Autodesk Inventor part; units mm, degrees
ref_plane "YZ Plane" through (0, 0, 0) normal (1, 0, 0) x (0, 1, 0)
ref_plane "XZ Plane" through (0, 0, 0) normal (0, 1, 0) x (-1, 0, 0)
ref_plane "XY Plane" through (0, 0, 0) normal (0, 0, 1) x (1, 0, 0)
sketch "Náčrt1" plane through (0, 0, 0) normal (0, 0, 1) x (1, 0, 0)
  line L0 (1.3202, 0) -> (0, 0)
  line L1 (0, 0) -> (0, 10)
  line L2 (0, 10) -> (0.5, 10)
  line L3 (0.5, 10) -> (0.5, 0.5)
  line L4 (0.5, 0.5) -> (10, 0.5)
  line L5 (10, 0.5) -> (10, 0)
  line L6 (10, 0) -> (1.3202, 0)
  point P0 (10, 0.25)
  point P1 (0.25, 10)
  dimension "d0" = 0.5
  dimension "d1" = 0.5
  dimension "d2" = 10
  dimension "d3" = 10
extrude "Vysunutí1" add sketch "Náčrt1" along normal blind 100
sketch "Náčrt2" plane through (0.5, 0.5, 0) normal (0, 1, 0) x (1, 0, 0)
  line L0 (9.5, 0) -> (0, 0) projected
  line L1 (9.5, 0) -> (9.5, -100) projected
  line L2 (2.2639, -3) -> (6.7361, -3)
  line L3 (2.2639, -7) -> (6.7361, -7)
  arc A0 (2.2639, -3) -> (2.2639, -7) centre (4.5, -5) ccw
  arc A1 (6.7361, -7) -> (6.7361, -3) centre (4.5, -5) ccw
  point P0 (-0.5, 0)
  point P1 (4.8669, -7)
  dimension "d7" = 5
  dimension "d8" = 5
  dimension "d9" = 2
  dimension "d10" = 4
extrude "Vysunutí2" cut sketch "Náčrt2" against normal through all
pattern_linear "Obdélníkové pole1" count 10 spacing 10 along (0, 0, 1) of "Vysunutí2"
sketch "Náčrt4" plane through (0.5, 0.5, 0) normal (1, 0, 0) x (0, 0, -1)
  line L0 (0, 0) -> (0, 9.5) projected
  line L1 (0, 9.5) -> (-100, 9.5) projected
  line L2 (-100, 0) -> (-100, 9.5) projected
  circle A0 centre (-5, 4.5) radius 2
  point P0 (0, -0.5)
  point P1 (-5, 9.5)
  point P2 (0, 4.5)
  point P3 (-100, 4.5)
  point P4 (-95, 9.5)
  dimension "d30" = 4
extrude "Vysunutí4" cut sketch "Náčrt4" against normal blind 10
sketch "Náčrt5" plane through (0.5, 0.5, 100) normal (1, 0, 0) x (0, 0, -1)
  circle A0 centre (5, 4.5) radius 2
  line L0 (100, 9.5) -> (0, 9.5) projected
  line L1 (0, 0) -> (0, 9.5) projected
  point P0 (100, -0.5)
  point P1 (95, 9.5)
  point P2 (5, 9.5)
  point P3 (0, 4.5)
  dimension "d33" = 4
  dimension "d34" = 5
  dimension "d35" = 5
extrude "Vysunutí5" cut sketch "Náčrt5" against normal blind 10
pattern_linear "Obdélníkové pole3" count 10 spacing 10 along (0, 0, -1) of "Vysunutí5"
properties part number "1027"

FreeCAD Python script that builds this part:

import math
import FreeCAD as App
import Part
import Sketcher
from FreeCAD import Vector
Q = App.Units.Quantity

doc = App.newDocument("Part")
body = doc.addObject("PartDesign::Body", "Body")

# Sketch on XY plane
sketch1 = doc.addObject("Sketcher::SketchObject", "Sketch")
body.addObject(sketch1)
sketch1.AttachmentSupport = (doc.XY_Plane, [""])
sketch1.MapMode = "FlatFace"
sketch1.addGeometry([
    Part.LineSegment(Vector(0, 0, 0), Vector(10, 0, 0)),  # 0
    Part.LineSegment(Vector(10, 0, 0), Vector(10, 0.5, 0)),  # 1
    Part.LineSegment(Vector(10, 0.5, 0), Vector(0.5, 0.5, 0)),  # 2
    Part.LineSegment(Vector(0.5, 0.5, 0), Vector(0.5, 10, 0)),  # 3
    Part.LineSegment(Vector(0.5, 10, 0), Vector(0, 10, 0)),  # 4
    Part.LineSegment(Vector(0, 10, 0), Vector(0, 0, 0)),  # 5
], False)
sketch1.addConstraint([
    Sketcher.Constraint("Coincident", 0, 2, 1, 1),
    Sketcher.Constraint("Coincident", 1, 2, 2, 1),
    Sketcher.Constraint("Coincident", 2, 2, 3, 1),
    Sketcher.Constraint("Coincident", 3, 2, 4, 1),
    Sketcher.Constraint("Coincident", 4, 2, 5, 1),
    Sketcher.Constraint("Coincident", 5, 2, 0, 1),
    Sketcher.Constraint("Horizontal", 0),
    Sketcher.Constraint("Vertical", 1),
    Sketcher.Constraint("Horizontal", 2),
    Sketcher.Constraint("Vertical", 3),
    Sketcher.Constraint("Horizontal", 4),
    Sketcher.Constraint("Vertical", 5),
    Sketcher.Constraint("Coincident", 5, 2, -1, 1),
    Sketcher.Constraint("Equal", 4, 1),
    Sketcher.Constraint("Equal", 2, 3),
    Sketcher.Constraint("DistanceX", 0, 1, 0, 2, Q("10 mm")),
    Sketcher.Constraint("DistanceX", 4, 2, 4, 1, Q("0.5 mm")),
])
pad1 = doc.addObject("PartDesign::Pad", "Pad")
body.addObject(pad1)
pad1.Profile = sketch1
pad1.Length = 100

# Sketch on XZ plane
sketch2 = doc.addObject("Sketcher::SketchObject", "Sketch001")
body.addObject(sketch2)
sketch2.AttachmentSupport = (doc.XZ_Plane, [""])
sketch2.MapMode = "FlatFace"
sketch2.AttachmentOffset = App.Placement(Vector(0, 0, -0.5), App.Rotation())
sketch2.addGeometry([
    Part.LineSegment(Vector(7.2, 3, 0), Vector(2.8, 3, 0)),
    Part.ArcOfCircle(Part.Circle(Vector(5, 5, 0), Vector(0, 0, 1), 3), math.radians(138), math.radians(222)),
    Part.LineSegment(Vector(2.8, 7, 0), Vector(7.2, 7, 0)),
    Part.ArcOfCircle(Part.Circle(Vector(5, 5, 0), Vector(0, 0, 1), 3), math.radians(-42), math.radians(42)),
], False)
sketch2.addConstraint([
    Sketcher.Constraint("Coincident", 0, 2, 1, 2),
    Sketcher.Constraint("Coincident", 1, 1, 2, 1),
    Sketcher.Constraint("Coincident", 2, 2, 3, 2),
    Sketcher.Constraint("Coincident", 3, 1, 0, 1),
    Sketcher.Constraint("Horizontal", 0),
    Sketcher.Constraint("Horizontal", 2),
    Sketcher.Constraint("Coincident", 3, 3, 1, 3),
    Sketcher.Constraint("Equal", 1, 3),
    Sketcher.Constraint("Vertical", 0, 2, 1, 1),
    Sketcher.Constraint("DistanceX", -1, 1, 1, 3, Q("5 mm")),
    Sketcher.Constraint("DistanceY", -1, 1, 1, 3, Q("5 mm")),
    Sketcher.Constraint("Radius", 1, Q("3 mm")),
    Sketcher.Constraint("DistanceY", 0, 2, 1, 3, Q("2 mm")),
])
pocket1 = doc.addObject("PartDesign::Pocket", "Pocket")
body.addObject(pocket1)
pocket1.Profile = sketch2
pocket1.Type = "ThroughAll"
pocket1.Reversed = True
doc.recompute()

linearpattern = doc.addObject("PartDesign::LinearPattern", "LinearPattern")
body.addObject(linearpattern)
linearpattern.Originals = [pocket1]
linearpattern.Direction = (doc.Z_Axis, [""])
linearpattern.Mode = "offset"
linearpattern.Offset = 10
linearpattern.Occurrences = 10
body.Tip = linearpattern

# Sketch on YZ plane
sketch3 = doc.addObject("Sketcher::SketchObject", "Sketch002")
body.addObject(sketch3)
sketch3.AttachmentSupport = (doc.YZ_Plane, [""])
sketch3.MapMode = "FlatFace"
sketch3.AttachmentOffset = App.Placement(Vector(0, 0, 0.5), App.Rotation())
sketch3.addGeometry(Part.Circle(Vector(5, 5, 0), Vector(0, 0, 1), 2), False)
sketch3.addConstraint([
    Sketcher.Constraint("Diameter", 0, Q("4 mm")),
    Sketcher.Constraint("DistanceX", -1, 1, 0, 3, Q("5 mm")),
    Sketcher.Constraint("DistanceY", -1, 1, 0, 3, Q("5 mm")),
])
pocket2 = doc.addObject("PartDesign::Pocket", "Pocket001")
body.addObject(pocket2)
pocket2.Profile = sketch3
pocket2.Length = 10

# Sketch on YZ plane
sketch4 = doc.addObject("Sketcher::SketchObject", "Sketch003")
body.addObject(sketch4)
sketch4.AttachmentSupport = (doc.YZ_Plane, [""])
sketch4.MapMode = "FlatFace"
sketch4.AttachmentOffset = App.Placement(Vector(0, 0, 0.5), App.Rotation())
sketch4.addGeometry(Part.Circle(Vector(5, 95, 0), Vector(0, 0, 1), 2), False)
sketch4.addConstraint([
    Sketcher.Constraint("Diameter", 0, Q("4 mm")),
    Sketcher.Constraint("DistanceX", -1, 1, 0, 3, Q("5 mm")),
    Sketcher.Constraint("DistanceY", -1, 1, 0, 3, Q("95 mm")),
])
pocket3 = doc.addObject("PartDesign::Pocket", "Pocket002")
body.addObject(pocket3)
pocket3.Profile = sketch4
pocket3.Length = 10
doc.recompute()

linearpattern2 = doc.addObject("PartDesign::LinearPattern", "LinearPattern001")
body.addObject(linearpattern2)
linearpattern2.Originals = [pocket3]
linearpattern2.Direction = (doc.Z_Axis, [""])
linearpattern2.Mode = "offset"
linearpattern2.Offset = 10
linearpattern2.Occurrences = 10
linearpattern2.Reversed = True
body.Tip = linearpattern2

doc.recompute()
